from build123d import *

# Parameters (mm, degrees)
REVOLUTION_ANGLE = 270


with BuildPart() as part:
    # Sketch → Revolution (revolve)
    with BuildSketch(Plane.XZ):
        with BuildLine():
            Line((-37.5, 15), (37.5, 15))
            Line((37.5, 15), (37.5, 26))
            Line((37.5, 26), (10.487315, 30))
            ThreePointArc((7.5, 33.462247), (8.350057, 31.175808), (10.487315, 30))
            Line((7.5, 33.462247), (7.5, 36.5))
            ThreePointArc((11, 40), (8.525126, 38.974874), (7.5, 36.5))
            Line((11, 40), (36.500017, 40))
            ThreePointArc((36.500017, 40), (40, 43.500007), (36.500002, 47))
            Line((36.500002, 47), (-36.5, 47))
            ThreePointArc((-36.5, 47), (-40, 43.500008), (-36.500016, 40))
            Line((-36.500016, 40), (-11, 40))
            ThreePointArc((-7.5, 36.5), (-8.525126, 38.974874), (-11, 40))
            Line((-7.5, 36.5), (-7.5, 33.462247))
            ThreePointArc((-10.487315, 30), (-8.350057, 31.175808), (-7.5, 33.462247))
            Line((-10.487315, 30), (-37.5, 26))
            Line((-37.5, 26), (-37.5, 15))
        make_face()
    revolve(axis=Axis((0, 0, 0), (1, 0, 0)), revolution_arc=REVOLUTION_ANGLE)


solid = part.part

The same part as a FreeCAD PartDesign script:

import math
import FreeCAD as App
import Part
import Sketcher

V = App.Vector

doc = App.newDocument("Part")
body = doc.addObject("PartDesign::Body", "Body")

sketch1 = body.newObject("Sketcher::SketchObject", "Sketch")
sketch1.AttachmentSupport = (doc.getObject("XZ_Plane"), [""])
sketch1.MapMode = "FlatFace"
sketch1.addGeometry([
    Part.LineSegment(V(-37.5, 15, 0), V(37.5, 15, 0)),
    Part.LineSegment(V(37.5, 15, 0), V(37.5, 26, 0)),
    Part.LineSegment(V(37.5, 26, 0), V(10.5, 30, 0)),
    Part.ArcOfCircle(Part.Circle(V(11, 33.5, 0), V(0, 0, 1), 3.5), math.radians(180), math.radians(262)),
    Part.LineSegment(V(7.5, 33.5, 0), V(7.5, 36.5, 0)),
    Part.ArcOfCircle(Part.Circle(V(11, 36.5, 0), V(0, 0, 1), 3.5), math.radians(90), math.radians(180)),
    Part.LineSegment(V(11, 40, 0), V(36.5, 40, 0)),
    Part.ArcOfCircle(Part.Circle(V(36.5, 43.5, 0), V(0, 0, 1), 3.5), math.radians(-90), math.radians(90)),
    Part.LineSegment(V(36.5, 47, 0), V(-36.5, 47, 0)),
    Part.ArcOfCircle(Part.Circle(V(-36.5, 43.5, 0), V(0, 0, 1), 3.5), math.radians(90), math.radians(270)),
    Part.LineSegment(V(-36.5, 40, 0), V(-11, 40, 0)),
    Part.ArcOfCircle(Part.Circle(V(-11, 36.5, 0), V(0, 0, 1), 3.5), math.radians(0), math.radians(90)),
    Part.LineSegment(V(-7.5, 36.5, 0), V(-7.5, 33.5, 0)),
    Part.ArcOfCircle(Part.Circle(V(-11, 33.5, 0), V(0, 0, 1), 3.5), math.radians(-82), math.radians(0)),
    Part.LineSegment(V(-10.5, 30, 0), V(-37.5, 26, 0)),
    Part.LineSegment(V(-37.5, 26, 0), V(-37.5, 15, 0)),
], False)
sketch1.addConstraint([
    Sketcher.Constraint("Coincident", 0, 2, 1, 1),
    Sketcher.Constraint("Coincident", 1, 2, 2, 1),
    Sketcher.Constraint("Tangent", 2, 2, 3, 2),
    Sketcher.Constraint("Tangent", 3, 1, 4, 1),
    Sketcher.Constraint("Tangent", 4, 2, 5, 2),
    Sketcher.Constraint("Tangent", 5, 1, 6, 1),
    Sketcher.Constraint("Coincident", 6, 2, 7, 1),
    Sketcher.Constraint("Tangent", 7, 2, 8, 1),
    Sketcher.Constraint("Tangent", 8, 2, 9, 1),
    Sketcher.Constraint("Coincident", 9, 2, 10, 1),
    Sketcher.Constraint("Tangent", 10, 2, 11, 2),
    Sketcher.Constraint("Tangent", 11, 1, 12, 1),
    Sketcher.Constraint("Tangent", 12, 2, 13, 2),
    Sketcher.Constraint("Tangent", 13, 1, 14, 1),
    Sketcher.Constraint("Coincident", 14, 2, 15, 1),
    Sketcher.Constraint("Coincident", 15, 2, 0, 1),
    Sketcher.Constraint("Horizontal", 0),
    Sketcher.Constraint("Vertical", 1),
    Sketcher.Constraint("Vertical", 4),
    Sketcher.Constraint("Horizontal", 6),
    Sketcher.Constraint("Horizontal", 8),
    Sketcher.Constraint("Horizontal", 10),
    Sketcher.Constraint("Vertical", 12),
    Sketcher.Constraint("Vertical", 15),
    Sketcher.Constraint("Equal", 3, 5),
    Sketcher.Constraint("Equal", 5, 7),
    Sketcher.Constraint("Equal", 7, 9),
    Sketcher.Constraint("Equal", 9, 11),
    Sketcher.Constraint("Equal", 11, 13),
    Sketcher.Constraint("Symmetric", 3, 3, 13, 3, -2),
    Sketcher.Constraint("Symmetric", 1, 2, 14, 2, -2),
    Sketcher.Constraint("Equal", 6, 10),
    Sketcher.Constraint("Radius", 3, 3.5),
    Sketcher.Constraint("DistanceX", 0, 1, 0, 2, 75.0),
    Sketcher.Constraint("DistanceX", 8, 2, 8, 1, 73.000002),
    Sketcher.Constraint("DistanceY", 1, 1, 1, 2, 11.0),
    Sketcher.Constraint("DistanceX", -1, 1, 3, 3, 11.0),
    Sketcher.Constraint("DistanceY", -1, 1, 0, 2, 15.0),
    Sketcher.Constraint("DistanceY", -1, 1, 2, 2, 30.0),
    Sketcher.Constraint("DistanceY", -1, 1, 5, 1, 40.0),
    Sketcher.Constraint("DistanceX", 7, 3, 0, 2, 1.0),
    Sketcher.Constraint("DistanceX", 6, 1, 6, 2, 25.500017),
])
revolution = body.newObject("PartDesign::Revolution", "Revolution")
revolution.Profile = sketch1
revolution.ReferenceAxis = (sketch1, ["H_Axis"])
revolution.Angle = 270

doc.recompute()
